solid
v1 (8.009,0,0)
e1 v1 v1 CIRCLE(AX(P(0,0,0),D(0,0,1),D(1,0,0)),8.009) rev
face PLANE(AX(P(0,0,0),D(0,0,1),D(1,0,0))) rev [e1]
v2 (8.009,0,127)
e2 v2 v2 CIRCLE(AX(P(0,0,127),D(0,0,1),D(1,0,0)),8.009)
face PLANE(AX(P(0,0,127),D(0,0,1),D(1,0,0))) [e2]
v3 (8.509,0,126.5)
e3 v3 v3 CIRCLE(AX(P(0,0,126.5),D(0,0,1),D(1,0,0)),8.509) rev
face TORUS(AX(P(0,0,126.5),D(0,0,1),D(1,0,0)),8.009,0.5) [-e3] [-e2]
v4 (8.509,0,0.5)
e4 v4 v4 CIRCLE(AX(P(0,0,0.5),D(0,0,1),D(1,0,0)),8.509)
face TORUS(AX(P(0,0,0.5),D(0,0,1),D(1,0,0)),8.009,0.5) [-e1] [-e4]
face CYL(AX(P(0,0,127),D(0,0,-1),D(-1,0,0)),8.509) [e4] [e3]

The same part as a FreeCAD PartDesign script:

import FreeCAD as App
import Part
import Sketcher

V = App.Vector
Q = App.Units.Quantity


def edges_at(feature, points):
    """Names of the edges that pass closest to the given points."""
    edges = feature.Shape.Edges
    near = lambda p: min(range(len(edges)), key=lambda i: edges[i].distToShape(Part.Vertex(*p))[0])
    return sorted({f"Edge{near(p) + 1}" for p in points})

doc = App.newDocument("Part")
params = doc.addObject("Spreadsheet::Sheet", "Params")
for row, (alias, value) in enumerate([
    ("sketch1_diameter", "0.67 in"),
    ("pad1_length", "5 in"),
    ("fillet_radius", "0.5 mm"),
], start=1):
    params.set(f"A{row}", alias)
    params.set(f"B{row}", "=" + value)
    params.setAlias(f"B{row}", alias)

body = doc.addObject("PartDesign::Body", "Body")

# Sketch on XY plane
sketch1 = body.newObject("Sketcher::SketchObject", "Sketch")
sketch1.AttachmentSupport = (doc.getObject("XY_Plane"), [""])
sketch1.MapMode = "FlatFace"
sketch1.addGeometry(Part.Circle(V(0, 0, 0), V(0, 0, 1), 9), False)
sketch1.addConstraint(Sketcher.Constraint("Coincident", 0, 3, -1, 1))
sketch1.addConstraint(Sketcher.Constraint("Diameter", 0, Q("0.67 in")))
sketch1.setExpression("Constraints[1]", "Params.sketch1_diameter")
pad1 = body.newObject("PartDesign::Pad", "Pad")
pad1.Profile = sketch1
pad1.setExpression("Length", "Params.pad1_length")
doc.recompute()

fillet = body.newObject("PartDesign::Fillet", "Fillet")
fillet.Base = (pad1, edges_at(pad1, [(-8.509, 0, 0), (-8.509, 0, 127)]))
fillet.setExpression("Radius", "Params.fillet_radius")

doc.recompute()
